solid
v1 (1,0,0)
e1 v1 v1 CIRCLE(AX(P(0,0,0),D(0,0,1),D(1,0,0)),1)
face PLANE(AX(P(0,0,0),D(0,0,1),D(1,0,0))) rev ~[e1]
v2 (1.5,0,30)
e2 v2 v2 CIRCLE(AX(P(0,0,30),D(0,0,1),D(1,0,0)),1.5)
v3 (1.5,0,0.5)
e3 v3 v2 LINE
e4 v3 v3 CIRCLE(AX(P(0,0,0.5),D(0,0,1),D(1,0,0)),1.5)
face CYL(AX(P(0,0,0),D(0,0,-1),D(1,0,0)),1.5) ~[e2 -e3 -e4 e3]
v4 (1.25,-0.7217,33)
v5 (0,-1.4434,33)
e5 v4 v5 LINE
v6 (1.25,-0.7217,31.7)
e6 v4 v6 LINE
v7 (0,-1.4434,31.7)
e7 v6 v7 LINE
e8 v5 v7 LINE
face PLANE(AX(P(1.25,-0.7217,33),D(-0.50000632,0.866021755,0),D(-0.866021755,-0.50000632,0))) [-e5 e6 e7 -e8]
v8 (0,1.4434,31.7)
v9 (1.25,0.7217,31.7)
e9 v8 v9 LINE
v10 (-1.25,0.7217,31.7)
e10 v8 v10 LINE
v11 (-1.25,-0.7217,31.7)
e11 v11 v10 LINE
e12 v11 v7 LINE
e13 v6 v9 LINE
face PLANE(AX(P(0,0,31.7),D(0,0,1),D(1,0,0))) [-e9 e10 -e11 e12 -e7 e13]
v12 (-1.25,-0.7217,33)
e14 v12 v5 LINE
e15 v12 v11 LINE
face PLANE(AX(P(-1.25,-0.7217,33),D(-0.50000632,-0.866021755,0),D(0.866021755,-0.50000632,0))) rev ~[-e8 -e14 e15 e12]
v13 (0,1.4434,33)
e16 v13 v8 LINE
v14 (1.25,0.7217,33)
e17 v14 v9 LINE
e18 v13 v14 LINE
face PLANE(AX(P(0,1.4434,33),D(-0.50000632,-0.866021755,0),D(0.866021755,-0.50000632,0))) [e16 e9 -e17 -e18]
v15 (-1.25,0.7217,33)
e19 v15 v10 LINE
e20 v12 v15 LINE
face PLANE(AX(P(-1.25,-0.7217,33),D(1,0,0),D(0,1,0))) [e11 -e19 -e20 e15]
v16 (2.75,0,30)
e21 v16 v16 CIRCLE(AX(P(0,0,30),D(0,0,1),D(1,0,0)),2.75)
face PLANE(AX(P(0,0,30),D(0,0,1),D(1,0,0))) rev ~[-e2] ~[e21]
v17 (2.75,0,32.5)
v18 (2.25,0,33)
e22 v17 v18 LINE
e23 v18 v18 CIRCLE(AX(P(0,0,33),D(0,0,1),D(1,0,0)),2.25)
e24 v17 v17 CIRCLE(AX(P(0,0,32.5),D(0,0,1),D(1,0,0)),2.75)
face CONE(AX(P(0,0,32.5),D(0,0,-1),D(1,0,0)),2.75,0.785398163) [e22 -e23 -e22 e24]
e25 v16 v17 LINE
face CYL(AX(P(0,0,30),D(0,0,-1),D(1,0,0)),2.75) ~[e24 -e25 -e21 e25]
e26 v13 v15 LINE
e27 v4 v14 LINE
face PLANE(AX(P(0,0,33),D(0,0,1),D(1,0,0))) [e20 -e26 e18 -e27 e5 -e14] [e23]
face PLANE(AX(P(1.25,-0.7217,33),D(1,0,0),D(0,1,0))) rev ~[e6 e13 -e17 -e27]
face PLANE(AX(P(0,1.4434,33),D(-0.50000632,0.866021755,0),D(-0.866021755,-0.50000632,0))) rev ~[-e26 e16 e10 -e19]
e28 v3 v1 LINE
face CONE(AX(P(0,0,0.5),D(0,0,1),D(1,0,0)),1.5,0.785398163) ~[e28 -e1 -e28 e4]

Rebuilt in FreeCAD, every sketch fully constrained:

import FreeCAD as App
import Part
import Sketcher
Q = App.Units.Quantity


def edges_at(feature, points):
    """Names of the edges that pass closest to the given points."""
    edges = feature.Shape.Edges
    near = lambda p: min(range(len(edges)), key=lambda i: edges[i].distToShape(Part.Vertex(*p))[0])
    return sorted({f"Edge{near(p) + 1}" for p in points})

doc = App.newDocument("Part")
body = doc.addObject("PartDesign::Body", "Body")

sketch1 = body.newObject("Sketcher::SketchObject", "Sketch")
sketch1.AttachmentSupport = (doc.getObject("XY_Plane"), [""])
sketch1.MapMode = "FlatFace"
sketch1.addGeometry(Part.Circle(App.Vector(0, 0, 0), App.Vector(0, 0, 1), 1.5), False)
sketch1.addConstraint([
    Sketcher.Constraint("Coincident", 0, 3, -1, 1),
    Sketcher.Constraint("Diameter", 0, Q("3 mm")),
])
pad1 = body.newObject("PartDesign::Pad", "Pad")
pad1.Profile = sketch1
pad1.Length = 30

sketch2 = body.newObject("Sketcher::SketchObject", "Sketch001")
sketch2.AttachmentSupport = (doc.getObject("XY_Plane"), [""])
sketch2.MapMode = "FlatFace"
sketch2.AttachmentOffset = App.Placement(App.Vector(0, 0, 30), App.Rotation())
sketch2.addGeometry(Part.Circle(App.Vector(0, 0, 0), App.Vector(0, 0, 1), 2.8), False)
sketch2.addConstraint([
    Sketcher.Constraint("Coincident", 0, 3, -1, 1),
    Sketcher.Constraint("Diameter", 0, Q("5.5 mm")),
])
pad2 = body.newObject("PartDesign::Pad", "Pad001")
pad2.Profile = sketch2
pad2.Length = 3

sketch3 = body.newObject("Sketcher::SketchObject", "Sketch002")
sketch3.AttachmentSupport = (doc.getObject("XY_Plane"), [""])
sketch3.MapMode = "FlatFace"
sketch3.AttachmentOffset = App.Placement(App.Vector(0, 0, 33), App.Rotation())
sketch3.addGeometry([
    Part.LineSegment(App.Vector(1.2, 0.7, 0), App.Vector(0, 1.4, 0)),
    Part.LineSegment(App.Vector(0, 1.4, 0), App.Vector(-1.2, 0.7, 0)),
    Part.LineSegment(App.Vector(-1.2, 0.7, 0), App.Vector(-1.2, -0.7, 0)),
    Part.LineSegment(App.Vector(-1.2, -0.7, 0), App.Vector(0, -1.4, 0)),
    Part.LineSegment(App.Vector(0, -1.4, 0), App.Vector(1.2, -0.7, 0)),
    Part.LineSegment(App.Vector(1.2, -0.7, 0), App.Vector(1.2, 0.7, 0)),
], False)
sketch3.addConstraint([
    Sketcher.Constraint("Coincident", 0, 2, 1, 1),
    Sketcher.Constraint("Coincident", 1, 2, 2, 1),
    Sketcher.Constraint("Coincident", 2, 2, 3, 1),
    Sketcher.Constraint("Coincident", 3, 2, 4, 1),
    Sketcher.Constraint("Coincident", 4, 2, 5, 1),
    Sketcher.Constraint("Coincident", 5, 2, 0, 1),
    Sketcher.Constraint("Vertical", 2),
    Sketcher.Constraint("Vertical", 5),
    Sketcher.Constraint("Symmetric", 0, 2, 3, 2, -1, 1),
    Sketcher.Constraint("Symmetric", 1, 2, 4, 2, -1, 1),
    Sketcher.Constraint("PointOnObject", 0, 2, -2),
    Sketcher.Constraint("Parallel", 0, 3),
    Sketcher.Constraint("Horizontal", 2, 2, 4, 2),
    Sketcher.Constraint("DistanceX", 2, 2, 4, 2, Q("2.5 mm")),
    Sketcher.Constraint("Angle", 0, Q("149.9996 deg")),
    Sketcher.Constraint("DistanceY", 2, 2, 2, 1, Q("1.4434 mm")),
])
pocket1 = body.newObject("PartDesign::Pocket", "Pocket")
pocket1.Profile = sketch3
pocket1.Length = 1.3
doc.recompute()

chamfer = body.newObject("PartDesign::Chamfer", "Chamfer")
chamfer.Base = (pocket1, edges_at(pocket1, [(-2.75, 0, 33), (-1.5, 0, 0)]))
chamfer.Size = 0.5

doc.recompute()
